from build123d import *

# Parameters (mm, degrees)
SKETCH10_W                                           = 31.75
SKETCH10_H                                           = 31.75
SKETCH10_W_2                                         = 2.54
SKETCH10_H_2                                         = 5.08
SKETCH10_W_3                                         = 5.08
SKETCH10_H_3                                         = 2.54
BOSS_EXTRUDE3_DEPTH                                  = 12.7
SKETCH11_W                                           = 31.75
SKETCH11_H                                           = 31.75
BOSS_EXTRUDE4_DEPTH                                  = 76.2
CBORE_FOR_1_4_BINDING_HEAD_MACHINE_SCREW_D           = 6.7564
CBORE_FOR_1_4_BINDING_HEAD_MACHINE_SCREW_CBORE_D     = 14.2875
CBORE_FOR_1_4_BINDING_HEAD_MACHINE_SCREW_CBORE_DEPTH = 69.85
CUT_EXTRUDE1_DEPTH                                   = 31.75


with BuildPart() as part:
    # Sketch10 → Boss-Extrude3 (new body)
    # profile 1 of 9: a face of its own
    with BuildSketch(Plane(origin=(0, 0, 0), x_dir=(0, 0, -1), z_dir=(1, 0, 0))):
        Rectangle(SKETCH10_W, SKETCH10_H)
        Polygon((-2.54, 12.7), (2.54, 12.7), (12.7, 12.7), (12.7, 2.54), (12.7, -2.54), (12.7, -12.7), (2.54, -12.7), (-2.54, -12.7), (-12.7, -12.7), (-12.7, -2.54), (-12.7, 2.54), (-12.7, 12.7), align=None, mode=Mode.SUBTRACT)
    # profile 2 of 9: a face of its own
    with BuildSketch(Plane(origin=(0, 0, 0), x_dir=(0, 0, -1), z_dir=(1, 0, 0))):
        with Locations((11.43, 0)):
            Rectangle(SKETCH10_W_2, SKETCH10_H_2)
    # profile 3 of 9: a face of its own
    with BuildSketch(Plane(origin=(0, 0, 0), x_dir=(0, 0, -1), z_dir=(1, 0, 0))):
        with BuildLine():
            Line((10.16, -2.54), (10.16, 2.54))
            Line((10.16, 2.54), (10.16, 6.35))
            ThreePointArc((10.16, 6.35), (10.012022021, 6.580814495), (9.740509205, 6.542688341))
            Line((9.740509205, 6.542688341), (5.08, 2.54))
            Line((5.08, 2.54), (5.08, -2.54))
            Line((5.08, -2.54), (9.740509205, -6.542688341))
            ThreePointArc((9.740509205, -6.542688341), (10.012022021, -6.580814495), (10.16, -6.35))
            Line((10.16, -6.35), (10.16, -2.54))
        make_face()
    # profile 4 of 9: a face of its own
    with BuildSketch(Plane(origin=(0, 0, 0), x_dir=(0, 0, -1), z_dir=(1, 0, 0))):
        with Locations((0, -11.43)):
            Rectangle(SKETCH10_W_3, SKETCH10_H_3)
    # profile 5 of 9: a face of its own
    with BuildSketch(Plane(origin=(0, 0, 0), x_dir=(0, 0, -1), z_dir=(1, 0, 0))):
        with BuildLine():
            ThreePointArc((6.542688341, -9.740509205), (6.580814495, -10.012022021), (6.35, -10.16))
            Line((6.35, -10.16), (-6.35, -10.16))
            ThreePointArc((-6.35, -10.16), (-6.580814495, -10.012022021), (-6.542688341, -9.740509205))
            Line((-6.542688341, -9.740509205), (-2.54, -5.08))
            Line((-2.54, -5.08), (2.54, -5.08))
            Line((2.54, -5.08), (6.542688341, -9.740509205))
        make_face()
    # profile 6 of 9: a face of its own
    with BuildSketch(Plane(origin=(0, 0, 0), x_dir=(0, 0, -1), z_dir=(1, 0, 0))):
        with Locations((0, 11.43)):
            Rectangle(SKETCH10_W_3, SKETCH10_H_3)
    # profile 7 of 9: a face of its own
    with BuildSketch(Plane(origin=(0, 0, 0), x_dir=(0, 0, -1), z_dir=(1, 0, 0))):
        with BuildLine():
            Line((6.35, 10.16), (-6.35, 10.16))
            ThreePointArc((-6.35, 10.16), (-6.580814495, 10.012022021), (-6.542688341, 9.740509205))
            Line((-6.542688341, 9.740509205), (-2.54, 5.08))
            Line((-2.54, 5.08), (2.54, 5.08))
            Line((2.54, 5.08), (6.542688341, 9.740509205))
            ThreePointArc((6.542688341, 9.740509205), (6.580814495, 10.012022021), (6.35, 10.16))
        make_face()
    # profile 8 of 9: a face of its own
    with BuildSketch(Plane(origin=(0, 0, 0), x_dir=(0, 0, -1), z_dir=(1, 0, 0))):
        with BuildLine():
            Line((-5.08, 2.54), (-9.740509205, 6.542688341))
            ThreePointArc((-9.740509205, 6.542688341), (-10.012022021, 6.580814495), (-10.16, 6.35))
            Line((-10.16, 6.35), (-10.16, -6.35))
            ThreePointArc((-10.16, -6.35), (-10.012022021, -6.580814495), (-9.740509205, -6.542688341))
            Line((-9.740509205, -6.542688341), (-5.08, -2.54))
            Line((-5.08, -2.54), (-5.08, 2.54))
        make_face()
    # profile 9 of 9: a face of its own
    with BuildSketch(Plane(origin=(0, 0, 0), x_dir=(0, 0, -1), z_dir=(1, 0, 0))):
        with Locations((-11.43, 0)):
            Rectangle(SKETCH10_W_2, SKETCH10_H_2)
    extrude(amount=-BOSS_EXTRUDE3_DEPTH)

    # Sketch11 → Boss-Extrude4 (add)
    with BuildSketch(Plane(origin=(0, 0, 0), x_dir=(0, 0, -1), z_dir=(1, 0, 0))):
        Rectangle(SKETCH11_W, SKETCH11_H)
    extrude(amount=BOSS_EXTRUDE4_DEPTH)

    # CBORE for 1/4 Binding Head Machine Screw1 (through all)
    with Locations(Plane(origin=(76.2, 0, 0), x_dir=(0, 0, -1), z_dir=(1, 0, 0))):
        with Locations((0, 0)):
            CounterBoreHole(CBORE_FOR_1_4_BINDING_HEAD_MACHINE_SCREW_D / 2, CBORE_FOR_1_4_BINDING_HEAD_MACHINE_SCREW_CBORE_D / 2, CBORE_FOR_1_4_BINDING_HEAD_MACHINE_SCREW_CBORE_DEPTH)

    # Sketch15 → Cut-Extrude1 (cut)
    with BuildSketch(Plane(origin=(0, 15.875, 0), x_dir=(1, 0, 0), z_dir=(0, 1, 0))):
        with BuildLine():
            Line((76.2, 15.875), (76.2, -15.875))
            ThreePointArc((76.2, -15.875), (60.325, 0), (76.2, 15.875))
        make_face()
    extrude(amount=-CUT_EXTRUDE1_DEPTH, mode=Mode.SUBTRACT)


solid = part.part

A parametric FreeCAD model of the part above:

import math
import FreeCAD as App
import Part
import Sketcher

V = App.Vector
Q = App.Units.Quantity


def add_polygon(sketch, points):
    """Adds a closed chain of lines whose ends are joined by coincident constraints."""
    first, n = sketch.GeometryCount, len(points)
    for a, b in zip(points, points[1:] + points[:1]):
        sketch.addGeometry(Part.LineSegment(App.Vector(*a, 0), App.Vector(*b, 0)), False)
    for i in range(n):
        sketch.addConstraint(Sketcher.Constraint("Coincident", first + i, 2, first + (i + 1) % n, 1))

doc = App.newDocument("Part")
body = doc.addObject("PartDesign::Body", "Body")

# Sketch on YZ plane
sketch1 = body.newObject("Sketcher::SketchObject", "Sketch")
sketch1.AttachmentSupport = (doc.getObject("YZ_Plane"), [""])
sketch1.MapMode = "FlatFace"
add_polygon(sketch1, [(15.875, 15.875), (-15.875, 15.875), (-15.875, -15.875), (15.875, -15.875)])  # lines 0-3
sketch1.addGeometry(Part.LineSegment(V(12.7, 12.7, 0), V(12.7, 2.54, 0)), False)  # 4
sketch1.addGeometry(Part.LineSegment(V(12.7, 2.54, 0), V(10.16, 2.54, 0)), False)  # 5
sketch1.addGeometry(Part.LineSegment(V(10.16, 2.54, 0), V(10.16, 6.35, 0)), False)  # 6
sketch1.addGeometry(Part.ArcOfCircle(Part.Circle(V(9.906, 6.35, 0), V(0, 0, 1), 0.254), math.radians(0), math.radians(130.657704)), False)  # 7
sketch1.addGeometry(Part.LineSegment(V(9.740509, 6.542688, 0), V(5.08, 2.54, 0)), False)  # 8
sketch1.addGeometry(Part.LineSegment(V(5.08, 2.54, 0), V(5.08, -2.54, 0)), False)  # 9
sketch1.addGeometry(Part.LineSegment(V(5.08, -2.54, 0), V(9.740509, -6.542688, 0)), False)  # 10
sketch1.addGeometry(Part.ArcOfCircle(Part.Circle(V(9.906, -6.35, 0), V(0, 0, 1), 0.254), math.radians(-130.657704), math.radians(0)), False)  # 11
sketch1.addGeometry(Part.LineSegment(V(10.16, -6.35, 0), V(10.16, -2.54, 0)), False)  # 12
sketch1.addGeometry(Part.LineSegment(V(10.16, -2.54, 0), V(12.7, -2.54, 0)), False)  # 13
sketch1.addGeometry(Part.LineSegment(V(12.7, -2.54, 0), V(12.7, -12.7, 0)), False)  # 14
sketch1.addGeometry(Part.LineSegment(V(12.7, -12.7, 0), V(2.54, -12.7, 0)), False)  # 15
sketch1.addGeometry(Part.LineSegment(V(2.54, -12.7, 0), V(2.54, -10.16, 0)), False)  # 16
sketch1.addGeometry(Part.LineSegment(V(2.54, -10.16, 0), V(6.35, -10.16, 0)), False)  # 17
sketch1.addGeometry(Part.ArcOfCircle(Part.Circle(V(6.35, -9.906, 0), V(0, 0, 1), 0.254), math.radians(-90), math.radians(40.657704)), False)  # 18
sketch1.addGeometry(Part.LineSegment(V(6.542688, -9.740509, 0), V(2.54, -5.08, 0)), False)  # 19
sketch1.addGeometry(Part.LineSegment(V(2.54, -5.08, 0), V(-2.54, -5.08, 0)), False)  # 20
sketch1.addGeometry(Part.LineSegment(V(-2.54, -5.08, 0), V(-6.542688, -9.740509, 0)), False)  # 21
sketch1.addGeometry(Part.ArcOfCircle(Part.Circle(V(-6.35, -9.906, 0), V(0, 0, 1), 0.254), math.radians(139.342296), math.radians(270)), False)  # 22
sketch1.addGeometry(Part.LineSegment(V(-6.35, -10.16, 0), V(-2.54, -10.16, 0)), False)  # 23
sketch1.addGeometry(Part.LineSegment(V(-2.54, -10.16, 0), V(-2.54, -12.7, 0)), False)  # 24
sketch1.addGeometry(Part.LineSegment(V(-2.54, -12.7, 0), V(-12.7, -12.7, 0)), False)  # 25
sketch1.addGeometry(Part.LineSegment(V(-12.7, -12.7, 0), V(-12.7, -2.54, 0)), False)  # 26
sketch1.addGeometry(Part.LineSegment(V(-12.7, -2.54, 0), V(-10.16, -2.54, 0)), False)  # 27
sketch1.addGeometry(Part.LineSegment(V(-10.16, -2.54, 0), V(-10.16, -6.35, 0)), False)  # 28
sketch1.addGeometry(Part.ArcOfCircle(Part.Circle(V(-9.906, -6.35, 0), V(0, 0, 1), 0.254), math.radians(180), math.radians(310.657704)), False)  # 29
sketch1.addGeometry(Part.LineSegment(V(-9.740509, -6.542688, 0), V(-5.08, -2.54, 0)), False)  # 30
sketch1.addGeometry(Part.LineSegment(V(-5.08, -2.54, 0), V(-5.08, 2.54, 0)), False)  # 31
sketch1.addGeometry(Part.LineSegment(V(-5.08, 2.54, 0), V(-9.740509, 6.542688, 0)), False)  # 32
sketch1.addGeometry(Part.ArcOfCircle(Part.Circle(V(-9.906, 6.35, 0), V(0, 0, 1), 0.254), math.radians(49.342296), math.radians(180)), False)  # 33
sketch1.addGeometry(Part.LineSegment(V(-10.16, 6.35, 0), V(-10.16, 2.54, 0)), False)  # 34
sketch1.addGeometry(Part.LineSegment(V(-10.16, 2.54, 0), V(-12.7, 2.54, 0)), False)  # 35
sketch1.addGeometry(Part.LineSegment(V(-12.7, 2.54, 0), V(-12.7, 12.7, 0)), False)  # 36
sketch1.addGeometry(Part.LineSegment(V(-12.7, 12.7, 0), V(-2.54, 12.7, 0)), False)  # 37
sketch1.addGeometry(Part.LineSegment(V(-2.54, 12.7, 0), V(-2.54, 10.16, 0)), False)  # 38
sketch1.addGeometry(Part.LineSegment(V(-2.54, 10.16, 0), V(-6.35, 10.16, 0)), False)  # 39
sketch1.addGeometry(Part.ArcOfCircle(Part.Circle(V(-6.35, 9.906, 0), V(0, 0, 1), 0.254), math.radians(90), math.radians(220.657704)), False)  # 40
sketch1.addGeometry(Part.LineSegment(V(-6.542688, 9.740509, 0), V(-2.54, 5.08, 0)), False)  # 41
sketch1.addGeometry(Part.LineSegment(V(-2.54, 5.08, 0), V(2.54, 5.08, 0)), False)  # 42
sketch1.addGeometry(Part.LineSegment(V(2.54, 5.08, 0), V(6.542688, 9.740509, 0)), False)  # 43
sketch1.addGeometry(Part.ArcOfCircle(Part.Circle(V(6.35, 9.906, 0), V(0, 0, 1), 0.254), math.radians(-40.657704), math.radians(90)), False)  # 44
sketch1.addGeometry(Part.LineSegment(V(6.35, 10.16, 0), V(2.54, 10.16, 0)), False)  # 45
sketch1.addGeometry(Part.LineSegment(V(2.54, 10.16, 0), V(2.54, 12.7, 0)), False)  # 46
sketch1.addGeometry(Part.LineSegment(V(2.54, 12.7, 0), V(12.7, 12.7, 0)), False)  # 47
sketch1.addConstraint(Sketcher.Constraint("Coincident", 4, 2, 5, 1))
sketch1.addConstraint(Sketcher.Constraint("Coincident", 5, 2, 6, 1))
sketch1.addConstraint(Sketcher.Constraint("Tangent", 6, 2, 7, 1))
sketch1.addConstraint(Sketcher.Constraint("Tangent", 7, 2, 8, 1))
sketch1.addConstraint(Sketcher.Constraint("Coincident", 8, 2, 9, 1))
sketch1.addConstraint(Sketcher.Constraint("Coincident", 9, 2, 10, 1))
sketch1.addConstraint(Sketcher.Constraint("Tangent", 10, 2, 11, 1))
sketch1.addConstraint(Sketcher.Constraint("Tangent", 11, 2, 12, 1))
sketch1.addConstraint(Sketcher.Constraint("Coincident", 12, 2, 13, 1))
sketch1.addConstraint(Sketcher.Constraint("Coincident", 13, 2, 14, 1))
sketch1.addConstraint(Sketcher.Constraint("Coincident", 14, 2, 15, 1))
sketch1.addConstraint(Sketcher.Constraint("Coincident", 15, 2, 16, 1))
sketch1.addConstraint(Sketcher.Constraint("Coincident", 16, 2, 17, 1))
sketch1.addConstraint(Sketcher.Constraint("Tangent", 17, 2, 18, 1))
sketch1.addConstraint(Sketcher.Constraint("Tangent", 18, 2, 19, 1))
sketch1.addConstraint(Sketcher.Constraint("Coincident", 19, 2, 20, 1))
sketch1.addConstraint(Sketcher.Constraint("Coincident", 20, 2, 21, 1))
sketch1.addConstraint(Sketcher.Constraint("Tangent", 21, 2, 22, 1))
sketch1.addConstraint(Sketcher.Constraint("Tangent", 22, 2, 23, 1))
sketch1.addConstraint(Sketcher.Constraint("Coincident", 23, 2, 24, 1))
sketch1.addConstraint(Sketcher.Constraint("Coincident", 24, 2, 25, 1))
sketch1.addConstraint(Sketcher.Constraint("Coincident", 25, 2, 26, 1))
sketch1.addConstraint(Sketcher.Constraint("Coincident", 26, 2, 27, 1))
sketch1.addConstraint(Sketcher.Constraint("Coincident", 27, 2, 28, 1))
sketch1.addConstraint(Sketcher.Constraint("Tangent", 28, 2, 29, 1))
sketch1.addConstraint(Sketcher.Constraint("Tangent", 29, 2, 30, 1))
sketch1.addConstraint(Sketcher.Constraint("Coincident", 30, 2, 31, 1))
sketch1.addConstraint(Sketcher.Constraint("Coincident", 31, 2, 32, 1))
sketch1.addConstraint(Sketcher.Constraint("Tangent", 32, 2, 33, 1))
sketch1.addConstraint(Sketcher.Constraint("Tangent", 33, 2, 34, 1))
sketch1.addConstraint(Sketcher.Constraint("Coincident", 34, 2, 35, 1))
sketch1.addConstraint(Sketcher.Constraint("Coincident", 35, 2, 36, 1))
sketch1.addConstraint(Sketcher.Constraint("Coincident", 36, 2, 37, 1))
sketch1.addConstraint(Sketcher.Constraint("Coincident", 37, 2, 38, 1))
sketch1.addConstraint(Sketcher.Constraint("Coincident", 38, 2, 39, 1))
sketch1.addConstraint(Sketcher.Constraint("Tangent", 39, 2, 40, 1))
sketch1.addConstraint(Sketcher.Constraint("Tangent", 40, 2, 41, 1))
sketch1.addConstraint(Sketcher.Constraint("Coincident", 41, 2, 42, 1))
sketch1.addConstraint(Sketcher.Constraint("Coincident", 42, 2, 43, 1))
sketch1.addConstraint(Sketcher.Constraint("Tangent", 43, 2, 44, 1))
sketch1.addConstraint(Sketcher.Constraint("Tangent", 44, 2, 45, 1))
sketch1.addConstraint(Sketcher.Constraint("Coincident", 45, 2, 46, 1))
sketch1.addConstraint(Sketcher.Constraint("Coincident", 46, 2, 47, 1))
sketch1.addConstraint(Sketcher.Constraint("Coincident", 47, 2, 4, 1))
sketch1.addConstraint(Sketcher.Constraint("Horizontal", 0))
sketch1.addConstraint(Sketcher.Constraint("Vertical", 1))
sketch1.addConstraint(Sketcher.Constraint("Horizontal", 2))
sketch1.addConstraint(Sketcher.Constraint("Vertical", 3))
sketch1.addConstraint(Sketcher.Constraint("Vertical", 4))
sketch1.addConstraint(Sketcher.Constraint("Horizontal", 5))
sketch1.addConstraint(Sketcher.Constraint("Vertical", 6))
sketch1.addConstraint(Sketcher.Constraint("Vertical", 9))
sketch1.addConstraint(Sketcher.Constraint("Vertical", 12))
sketch1.addConstraint(Sketcher.Constraint("Horizontal", 13))
sketch1.addConstraint(Sketcher.Constraint("Vertical", 14))
sketch1.addConstraint(Sketcher.Constraint("Horizontal", 15))
sketch1.addConstraint(Sketcher.Constraint("Vertical", 16))
sketch1.addConstraint(Sketcher.Constraint("Horizontal", 17))
sketch1.addConstraint(Sketcher.Constraint("Horizontal", 20))
sketch1.addConstraint(Sketcher.Constraint("Horizontal", 23))
sketch1.addConstraint(Sketcher.Constraint("Vertical", 24))
sketch1.addConstraint(Sketcher.Constraint("Horizontal", 25))
sketch1.addConstraint(Sketcher.Constraint("Vertical", 26))
sketch1.addConstraint(Sketcher.Constraint("Horizontal", 27))
sketch1.addConstraint(Sketcher.Constraint("Vertical", 28))
sketch1.addConstraint(Sketcher.Constraint("Vertical", 31))
sketch1.addConstraint(Sketcher.Constraint("Vertical", 34))
sketch1.addConstraint(Sketcher.Constraint("Horizontal", 35))
sketch1.addConstraint(Sketcher.Constraint("Vertical", 36))
sketch1.addConstraint(Sketcher.Constraint("Horizontal", 37))
sketch1.addConstraint(Sketcher.Constraint("Vertical", 38))
sketch1.addConstraint(Sketcher.Constraint("Horizontal", 39))
sketch1.addConstraint(Sketcher.Constraint("Horizontal", 42))
sketch1.addConstraint(Sketcher.Constraint("Horizontal", 45))
sketch1.addConstraint(Sketcher.Constraint("Vertical", 46))
sketch1.addConstraint(Sketcher.Constraint("Horizontal", 47))
sketch1.addConstraint(Sketcher.Constraint("Equal", 7, 11))
sketch1.addConstraint(Sketcher.Constraint("Equal", 11, 18))
sketch1.addConstraint(Sketcher.Constraint("Equal", 18, 22))
sketch1.addConstraint(Sketcher.Constraint("Equal", 22, 29))
sketch1.addConstraint(Sketcher.Constraint("Equal", 29, 33))
sketch1.addConstraint(Sketcher.Constraint("Equal", 33, 40))
sketch1.addConstraint(Sketcher.Constraint("Equal", 40, 44))
sketch1.addConstraint(Sketcher.Constraint("Symmetric", 7, 3, 29, 3, -1, 1))
sketch1.addConstraint(Sketcher.Constraint("Symmetric", 11, 3, 33, 3, -1, 1))
sketch1.addConstraint(Sketcher.Constraint("Symmetric", 18, 3, 40, 3, -1, 1))
sketch1.addConstraint(Sketcher.Constraint("Symmetric", 22, 3, 44, 3, -1, 1))
sketch1.addConstraint(Sketcher.Constraint("Symmetric", 0, 2, 2, 2, -1, 1))
sketch1.addConstraint(Sketcher.Constraint("Symmetric", 4, 2, 26, 2, -1, 1))
sketch1.addConstraint(Sketcher.Constraint("Symmetric", 8, 2, 30, 2, -1, 1))
sketch1.addConstraint(Sketcher.Constraint("Symmetric", 13, 2, 35, 2, -1, 1))
sketch1.addConstraint(Sketcher.Constraint("Symmetric", 15, 2, 37, 2, -1, 1))
sketch1.addConstraint(Sketcher.Constraint("Symmetric", 19, 2, 41, 2, -1, 1))
sketch1.addConstraint(Sketcher.Constraint("Symmetric", 24, 2, 46, 2, -1, 1))
sketch1.addConstraint(Sketcher.Constraint("Symmetric", 18, 3, 22, 3, -2))
sketch1.addConstraint(Sketcher.Constraint("Symmetric", 11, 3, 29, 3, -2))
sketch1.addConstraint(Sketcher.Constraint("Symmetric", 15, 2, 24, 2, -2))
sketch1.addConstraint(Sketcher.Constraint("Symmetric", 13, 2, 26, 2, -2))
sketch1.addConstraint(Sketcher.Constraint("Perpendicular", 8, 19))
sketch1.addConstraint(Sketcher.Constraint("Perpendicular", 10, 21))
sketch1.addConstraint(Sketcher.Constraint("Perpendicular", 21, 32))
sketch1.addConstraint(Sketcher.Constraint("Perpendicular", 32, 43))
sketch1.addConstraint(Sketcher.Constraint("Horizontal", 5, 2, 8, 2))
sketch1.addConstraint(Sketcher.Constraint("Horizontal", 9, 2, 12, 2))
sketch1.addConstraint(Sketcher.Constraint("Vertical", 16, 2, 19, 2))
sketch1.addConstraint(Sketcher.Constraint("Equal", 2, 1))
sketch1.addConstraint(Sketcher.Constraint("Equal", 47, 4))
sketch1.addConstraint(Sketcher.Constraint("Equal", 45, 6))
sketch1.addConstraint(Sketcher.Constraint("Equal", 42, 9))
sketch1.addConstraint(Sketcher.Constraint("Equal", 35, 16))
sketch1.addConstraint(Sketcher.Constraint("Radius", 7, Q("0.01 in")))
sketch1.addConstraint(Sketcher.Constraint("DistanceX", 5, 2, 5, 1, Q("0.1 in")))
sketch1.addConstraint(Sketcher.Constraint("DistanceX", 15, 2, 15, 1, Q("0.4 in")))
sketch1.addConstraint(Sketcher.Constraint("DistanceX", 20, 2, 20, 1, Q("0.2 in")))
sketch1.addConstraint(Sketcher.Constraint("DistanceX", 0, 2, 0, 1, Q("1.25 in")))
sketch1.addConstraint(Sketcher.Constraint("DistanceX", 17, 1, 17, 2, Q("0.15 in")))
sketch1.addConstraint(Sketcher.Constraint("DistanceX", -1, 1, 8, 2, Q("0.2 in")))
pad1 = body.newObject("PartDesign::Pad", "Pad")
pad1.Profile = sketch1
pad1.Length = Q("0.5 in")
pad1.Reversed = True

# Sketch on YZ plane
sketch2 = body.newObject("Sketcher::SketchObject", "Sketch001")
sketch2.AttachmentSupport = (doc.getObject("YZ_Plane"), [""])
sketch2.MapMode = "FlatFace"
add_polygon(sketch2, [(15.875, 15.875), (-15.875, 15.875), (-15.875, -15.875), (15.875, -15.875)])  # lines 0-3
sketch2.addConstraint(Sketcher.Constraint("Horizontal", 0))
sketch2.addConstraint(Sketcher.Constraint("Vertical", 1))
sketch2.addConstraint(Sketcher.Constraint("Horizontal", 2))
sketch2.addConstraint(Sketcher.Constraint("Vertical", 3))
sketch2.addConstraint(Sketcher.Constraint("Symmetric", 0, 2, 2, 2, -1, 1))
sketch2.addConstraint(Sketcher.Constraint("Equal", 2, 1))
sketch2.addConstraint(Sketcher.Constraint("DistanceX", 0, 2, 0, 1, Q("1.25 in")))
pad2 = body.newObject("PartDesign::Pad", "Pad001")
pad2.Profile = sketch2
pad2.Length = Q("3 in")

# Sketch on YZ plane
sketch3 = body.newObject("Sketcher::SketchObject", "Sketch002")
sketch3.AttachmentSupport = (doc.getObject("YZ_Plane"), [""])
sketch3.MapMode = "FlatFace"
sketch3.AttachmentOffset = App.Placement(V(0, 0, 3 * 25.4), App.Rotation())
sketch3.addGeometry(Part.Circle(V(0, 0, 0), V(0, 0, 1), 3.3782), False)
sketch3.addConstraint(Sketcher.Constraint("Coincident", 0, 3, -1, 1))
sketch3.addConstraint(Sketcher.Constraint("Diameter", 0, Q("0.266 in")))
doc.recompute()
hole = body.newObject("PartDesign::Hole", "Hole")
hole.Profile = sketch3
hole.ThreadType = "None"
hole.Diameter = Q("0.266 in")
hole.DepthType = "ThroughAll"
hole.HoleCutType = "Counterbore"
hole.HoleCutDiameter = Q("0.5625 in")
hole.HoleCutDepth = Q("2.75 in")

# Sketch on XZ plane
sketch4 = body.newObject("Sketcher::SketchObject", "Sketch003")
sketch4.AttachmentSupport = (doc.getObject("XZ_Plane"), [""])
sketch4.MapMode = "FlatFace"
sketch4.AttachmentOffset = App.Placement(V(0, 0, -0.625 * 25.4), App.Rotation())
sketch4.addGeometry(Part.LineSegment(V(76.2, 15.875, 0), V(76.2, -15.875, 0)), False)
sketch4.addGeometry(Part.ArcOfCircle(Part.Circle(V(76.2, 0, 0), V(0, 0, 1), 15.875), math.radians(90), math.radians(270)), False)
sketch4.addConstraint(Sketcher.Constraint("Coincident", 0, 1, 1, 1))
sketch4.addConstraint(Sketcher.Constraint("Coincident", 1, 2, 0, 2))
sketch4.addConstraint(Sketcher.Constraint("Vertical", 0))
sketch4.addConstraint(Sketcher.Constraint("PointOnObject", 1, 3, -1))
sketch4.addConstraint(Sketcher.Constraint("Vertical", 1, 3, 0, 1))
sketch4.addConstraint(Sketcher.Constraint("DistanceX", -1, 1, 1, 3, Q("3 in")))
sketch4.addConstraint(Sketcher.Constraint("Radius", 1, Q("0.625 in")))
pocket1 = body.newObject("PartDesign::Pocket", "Pocket")
pocket1.Profile = sketch4
pocket1.Length = Q("1.25 in")
pocket1.Reversed = True

doc.recompute()
